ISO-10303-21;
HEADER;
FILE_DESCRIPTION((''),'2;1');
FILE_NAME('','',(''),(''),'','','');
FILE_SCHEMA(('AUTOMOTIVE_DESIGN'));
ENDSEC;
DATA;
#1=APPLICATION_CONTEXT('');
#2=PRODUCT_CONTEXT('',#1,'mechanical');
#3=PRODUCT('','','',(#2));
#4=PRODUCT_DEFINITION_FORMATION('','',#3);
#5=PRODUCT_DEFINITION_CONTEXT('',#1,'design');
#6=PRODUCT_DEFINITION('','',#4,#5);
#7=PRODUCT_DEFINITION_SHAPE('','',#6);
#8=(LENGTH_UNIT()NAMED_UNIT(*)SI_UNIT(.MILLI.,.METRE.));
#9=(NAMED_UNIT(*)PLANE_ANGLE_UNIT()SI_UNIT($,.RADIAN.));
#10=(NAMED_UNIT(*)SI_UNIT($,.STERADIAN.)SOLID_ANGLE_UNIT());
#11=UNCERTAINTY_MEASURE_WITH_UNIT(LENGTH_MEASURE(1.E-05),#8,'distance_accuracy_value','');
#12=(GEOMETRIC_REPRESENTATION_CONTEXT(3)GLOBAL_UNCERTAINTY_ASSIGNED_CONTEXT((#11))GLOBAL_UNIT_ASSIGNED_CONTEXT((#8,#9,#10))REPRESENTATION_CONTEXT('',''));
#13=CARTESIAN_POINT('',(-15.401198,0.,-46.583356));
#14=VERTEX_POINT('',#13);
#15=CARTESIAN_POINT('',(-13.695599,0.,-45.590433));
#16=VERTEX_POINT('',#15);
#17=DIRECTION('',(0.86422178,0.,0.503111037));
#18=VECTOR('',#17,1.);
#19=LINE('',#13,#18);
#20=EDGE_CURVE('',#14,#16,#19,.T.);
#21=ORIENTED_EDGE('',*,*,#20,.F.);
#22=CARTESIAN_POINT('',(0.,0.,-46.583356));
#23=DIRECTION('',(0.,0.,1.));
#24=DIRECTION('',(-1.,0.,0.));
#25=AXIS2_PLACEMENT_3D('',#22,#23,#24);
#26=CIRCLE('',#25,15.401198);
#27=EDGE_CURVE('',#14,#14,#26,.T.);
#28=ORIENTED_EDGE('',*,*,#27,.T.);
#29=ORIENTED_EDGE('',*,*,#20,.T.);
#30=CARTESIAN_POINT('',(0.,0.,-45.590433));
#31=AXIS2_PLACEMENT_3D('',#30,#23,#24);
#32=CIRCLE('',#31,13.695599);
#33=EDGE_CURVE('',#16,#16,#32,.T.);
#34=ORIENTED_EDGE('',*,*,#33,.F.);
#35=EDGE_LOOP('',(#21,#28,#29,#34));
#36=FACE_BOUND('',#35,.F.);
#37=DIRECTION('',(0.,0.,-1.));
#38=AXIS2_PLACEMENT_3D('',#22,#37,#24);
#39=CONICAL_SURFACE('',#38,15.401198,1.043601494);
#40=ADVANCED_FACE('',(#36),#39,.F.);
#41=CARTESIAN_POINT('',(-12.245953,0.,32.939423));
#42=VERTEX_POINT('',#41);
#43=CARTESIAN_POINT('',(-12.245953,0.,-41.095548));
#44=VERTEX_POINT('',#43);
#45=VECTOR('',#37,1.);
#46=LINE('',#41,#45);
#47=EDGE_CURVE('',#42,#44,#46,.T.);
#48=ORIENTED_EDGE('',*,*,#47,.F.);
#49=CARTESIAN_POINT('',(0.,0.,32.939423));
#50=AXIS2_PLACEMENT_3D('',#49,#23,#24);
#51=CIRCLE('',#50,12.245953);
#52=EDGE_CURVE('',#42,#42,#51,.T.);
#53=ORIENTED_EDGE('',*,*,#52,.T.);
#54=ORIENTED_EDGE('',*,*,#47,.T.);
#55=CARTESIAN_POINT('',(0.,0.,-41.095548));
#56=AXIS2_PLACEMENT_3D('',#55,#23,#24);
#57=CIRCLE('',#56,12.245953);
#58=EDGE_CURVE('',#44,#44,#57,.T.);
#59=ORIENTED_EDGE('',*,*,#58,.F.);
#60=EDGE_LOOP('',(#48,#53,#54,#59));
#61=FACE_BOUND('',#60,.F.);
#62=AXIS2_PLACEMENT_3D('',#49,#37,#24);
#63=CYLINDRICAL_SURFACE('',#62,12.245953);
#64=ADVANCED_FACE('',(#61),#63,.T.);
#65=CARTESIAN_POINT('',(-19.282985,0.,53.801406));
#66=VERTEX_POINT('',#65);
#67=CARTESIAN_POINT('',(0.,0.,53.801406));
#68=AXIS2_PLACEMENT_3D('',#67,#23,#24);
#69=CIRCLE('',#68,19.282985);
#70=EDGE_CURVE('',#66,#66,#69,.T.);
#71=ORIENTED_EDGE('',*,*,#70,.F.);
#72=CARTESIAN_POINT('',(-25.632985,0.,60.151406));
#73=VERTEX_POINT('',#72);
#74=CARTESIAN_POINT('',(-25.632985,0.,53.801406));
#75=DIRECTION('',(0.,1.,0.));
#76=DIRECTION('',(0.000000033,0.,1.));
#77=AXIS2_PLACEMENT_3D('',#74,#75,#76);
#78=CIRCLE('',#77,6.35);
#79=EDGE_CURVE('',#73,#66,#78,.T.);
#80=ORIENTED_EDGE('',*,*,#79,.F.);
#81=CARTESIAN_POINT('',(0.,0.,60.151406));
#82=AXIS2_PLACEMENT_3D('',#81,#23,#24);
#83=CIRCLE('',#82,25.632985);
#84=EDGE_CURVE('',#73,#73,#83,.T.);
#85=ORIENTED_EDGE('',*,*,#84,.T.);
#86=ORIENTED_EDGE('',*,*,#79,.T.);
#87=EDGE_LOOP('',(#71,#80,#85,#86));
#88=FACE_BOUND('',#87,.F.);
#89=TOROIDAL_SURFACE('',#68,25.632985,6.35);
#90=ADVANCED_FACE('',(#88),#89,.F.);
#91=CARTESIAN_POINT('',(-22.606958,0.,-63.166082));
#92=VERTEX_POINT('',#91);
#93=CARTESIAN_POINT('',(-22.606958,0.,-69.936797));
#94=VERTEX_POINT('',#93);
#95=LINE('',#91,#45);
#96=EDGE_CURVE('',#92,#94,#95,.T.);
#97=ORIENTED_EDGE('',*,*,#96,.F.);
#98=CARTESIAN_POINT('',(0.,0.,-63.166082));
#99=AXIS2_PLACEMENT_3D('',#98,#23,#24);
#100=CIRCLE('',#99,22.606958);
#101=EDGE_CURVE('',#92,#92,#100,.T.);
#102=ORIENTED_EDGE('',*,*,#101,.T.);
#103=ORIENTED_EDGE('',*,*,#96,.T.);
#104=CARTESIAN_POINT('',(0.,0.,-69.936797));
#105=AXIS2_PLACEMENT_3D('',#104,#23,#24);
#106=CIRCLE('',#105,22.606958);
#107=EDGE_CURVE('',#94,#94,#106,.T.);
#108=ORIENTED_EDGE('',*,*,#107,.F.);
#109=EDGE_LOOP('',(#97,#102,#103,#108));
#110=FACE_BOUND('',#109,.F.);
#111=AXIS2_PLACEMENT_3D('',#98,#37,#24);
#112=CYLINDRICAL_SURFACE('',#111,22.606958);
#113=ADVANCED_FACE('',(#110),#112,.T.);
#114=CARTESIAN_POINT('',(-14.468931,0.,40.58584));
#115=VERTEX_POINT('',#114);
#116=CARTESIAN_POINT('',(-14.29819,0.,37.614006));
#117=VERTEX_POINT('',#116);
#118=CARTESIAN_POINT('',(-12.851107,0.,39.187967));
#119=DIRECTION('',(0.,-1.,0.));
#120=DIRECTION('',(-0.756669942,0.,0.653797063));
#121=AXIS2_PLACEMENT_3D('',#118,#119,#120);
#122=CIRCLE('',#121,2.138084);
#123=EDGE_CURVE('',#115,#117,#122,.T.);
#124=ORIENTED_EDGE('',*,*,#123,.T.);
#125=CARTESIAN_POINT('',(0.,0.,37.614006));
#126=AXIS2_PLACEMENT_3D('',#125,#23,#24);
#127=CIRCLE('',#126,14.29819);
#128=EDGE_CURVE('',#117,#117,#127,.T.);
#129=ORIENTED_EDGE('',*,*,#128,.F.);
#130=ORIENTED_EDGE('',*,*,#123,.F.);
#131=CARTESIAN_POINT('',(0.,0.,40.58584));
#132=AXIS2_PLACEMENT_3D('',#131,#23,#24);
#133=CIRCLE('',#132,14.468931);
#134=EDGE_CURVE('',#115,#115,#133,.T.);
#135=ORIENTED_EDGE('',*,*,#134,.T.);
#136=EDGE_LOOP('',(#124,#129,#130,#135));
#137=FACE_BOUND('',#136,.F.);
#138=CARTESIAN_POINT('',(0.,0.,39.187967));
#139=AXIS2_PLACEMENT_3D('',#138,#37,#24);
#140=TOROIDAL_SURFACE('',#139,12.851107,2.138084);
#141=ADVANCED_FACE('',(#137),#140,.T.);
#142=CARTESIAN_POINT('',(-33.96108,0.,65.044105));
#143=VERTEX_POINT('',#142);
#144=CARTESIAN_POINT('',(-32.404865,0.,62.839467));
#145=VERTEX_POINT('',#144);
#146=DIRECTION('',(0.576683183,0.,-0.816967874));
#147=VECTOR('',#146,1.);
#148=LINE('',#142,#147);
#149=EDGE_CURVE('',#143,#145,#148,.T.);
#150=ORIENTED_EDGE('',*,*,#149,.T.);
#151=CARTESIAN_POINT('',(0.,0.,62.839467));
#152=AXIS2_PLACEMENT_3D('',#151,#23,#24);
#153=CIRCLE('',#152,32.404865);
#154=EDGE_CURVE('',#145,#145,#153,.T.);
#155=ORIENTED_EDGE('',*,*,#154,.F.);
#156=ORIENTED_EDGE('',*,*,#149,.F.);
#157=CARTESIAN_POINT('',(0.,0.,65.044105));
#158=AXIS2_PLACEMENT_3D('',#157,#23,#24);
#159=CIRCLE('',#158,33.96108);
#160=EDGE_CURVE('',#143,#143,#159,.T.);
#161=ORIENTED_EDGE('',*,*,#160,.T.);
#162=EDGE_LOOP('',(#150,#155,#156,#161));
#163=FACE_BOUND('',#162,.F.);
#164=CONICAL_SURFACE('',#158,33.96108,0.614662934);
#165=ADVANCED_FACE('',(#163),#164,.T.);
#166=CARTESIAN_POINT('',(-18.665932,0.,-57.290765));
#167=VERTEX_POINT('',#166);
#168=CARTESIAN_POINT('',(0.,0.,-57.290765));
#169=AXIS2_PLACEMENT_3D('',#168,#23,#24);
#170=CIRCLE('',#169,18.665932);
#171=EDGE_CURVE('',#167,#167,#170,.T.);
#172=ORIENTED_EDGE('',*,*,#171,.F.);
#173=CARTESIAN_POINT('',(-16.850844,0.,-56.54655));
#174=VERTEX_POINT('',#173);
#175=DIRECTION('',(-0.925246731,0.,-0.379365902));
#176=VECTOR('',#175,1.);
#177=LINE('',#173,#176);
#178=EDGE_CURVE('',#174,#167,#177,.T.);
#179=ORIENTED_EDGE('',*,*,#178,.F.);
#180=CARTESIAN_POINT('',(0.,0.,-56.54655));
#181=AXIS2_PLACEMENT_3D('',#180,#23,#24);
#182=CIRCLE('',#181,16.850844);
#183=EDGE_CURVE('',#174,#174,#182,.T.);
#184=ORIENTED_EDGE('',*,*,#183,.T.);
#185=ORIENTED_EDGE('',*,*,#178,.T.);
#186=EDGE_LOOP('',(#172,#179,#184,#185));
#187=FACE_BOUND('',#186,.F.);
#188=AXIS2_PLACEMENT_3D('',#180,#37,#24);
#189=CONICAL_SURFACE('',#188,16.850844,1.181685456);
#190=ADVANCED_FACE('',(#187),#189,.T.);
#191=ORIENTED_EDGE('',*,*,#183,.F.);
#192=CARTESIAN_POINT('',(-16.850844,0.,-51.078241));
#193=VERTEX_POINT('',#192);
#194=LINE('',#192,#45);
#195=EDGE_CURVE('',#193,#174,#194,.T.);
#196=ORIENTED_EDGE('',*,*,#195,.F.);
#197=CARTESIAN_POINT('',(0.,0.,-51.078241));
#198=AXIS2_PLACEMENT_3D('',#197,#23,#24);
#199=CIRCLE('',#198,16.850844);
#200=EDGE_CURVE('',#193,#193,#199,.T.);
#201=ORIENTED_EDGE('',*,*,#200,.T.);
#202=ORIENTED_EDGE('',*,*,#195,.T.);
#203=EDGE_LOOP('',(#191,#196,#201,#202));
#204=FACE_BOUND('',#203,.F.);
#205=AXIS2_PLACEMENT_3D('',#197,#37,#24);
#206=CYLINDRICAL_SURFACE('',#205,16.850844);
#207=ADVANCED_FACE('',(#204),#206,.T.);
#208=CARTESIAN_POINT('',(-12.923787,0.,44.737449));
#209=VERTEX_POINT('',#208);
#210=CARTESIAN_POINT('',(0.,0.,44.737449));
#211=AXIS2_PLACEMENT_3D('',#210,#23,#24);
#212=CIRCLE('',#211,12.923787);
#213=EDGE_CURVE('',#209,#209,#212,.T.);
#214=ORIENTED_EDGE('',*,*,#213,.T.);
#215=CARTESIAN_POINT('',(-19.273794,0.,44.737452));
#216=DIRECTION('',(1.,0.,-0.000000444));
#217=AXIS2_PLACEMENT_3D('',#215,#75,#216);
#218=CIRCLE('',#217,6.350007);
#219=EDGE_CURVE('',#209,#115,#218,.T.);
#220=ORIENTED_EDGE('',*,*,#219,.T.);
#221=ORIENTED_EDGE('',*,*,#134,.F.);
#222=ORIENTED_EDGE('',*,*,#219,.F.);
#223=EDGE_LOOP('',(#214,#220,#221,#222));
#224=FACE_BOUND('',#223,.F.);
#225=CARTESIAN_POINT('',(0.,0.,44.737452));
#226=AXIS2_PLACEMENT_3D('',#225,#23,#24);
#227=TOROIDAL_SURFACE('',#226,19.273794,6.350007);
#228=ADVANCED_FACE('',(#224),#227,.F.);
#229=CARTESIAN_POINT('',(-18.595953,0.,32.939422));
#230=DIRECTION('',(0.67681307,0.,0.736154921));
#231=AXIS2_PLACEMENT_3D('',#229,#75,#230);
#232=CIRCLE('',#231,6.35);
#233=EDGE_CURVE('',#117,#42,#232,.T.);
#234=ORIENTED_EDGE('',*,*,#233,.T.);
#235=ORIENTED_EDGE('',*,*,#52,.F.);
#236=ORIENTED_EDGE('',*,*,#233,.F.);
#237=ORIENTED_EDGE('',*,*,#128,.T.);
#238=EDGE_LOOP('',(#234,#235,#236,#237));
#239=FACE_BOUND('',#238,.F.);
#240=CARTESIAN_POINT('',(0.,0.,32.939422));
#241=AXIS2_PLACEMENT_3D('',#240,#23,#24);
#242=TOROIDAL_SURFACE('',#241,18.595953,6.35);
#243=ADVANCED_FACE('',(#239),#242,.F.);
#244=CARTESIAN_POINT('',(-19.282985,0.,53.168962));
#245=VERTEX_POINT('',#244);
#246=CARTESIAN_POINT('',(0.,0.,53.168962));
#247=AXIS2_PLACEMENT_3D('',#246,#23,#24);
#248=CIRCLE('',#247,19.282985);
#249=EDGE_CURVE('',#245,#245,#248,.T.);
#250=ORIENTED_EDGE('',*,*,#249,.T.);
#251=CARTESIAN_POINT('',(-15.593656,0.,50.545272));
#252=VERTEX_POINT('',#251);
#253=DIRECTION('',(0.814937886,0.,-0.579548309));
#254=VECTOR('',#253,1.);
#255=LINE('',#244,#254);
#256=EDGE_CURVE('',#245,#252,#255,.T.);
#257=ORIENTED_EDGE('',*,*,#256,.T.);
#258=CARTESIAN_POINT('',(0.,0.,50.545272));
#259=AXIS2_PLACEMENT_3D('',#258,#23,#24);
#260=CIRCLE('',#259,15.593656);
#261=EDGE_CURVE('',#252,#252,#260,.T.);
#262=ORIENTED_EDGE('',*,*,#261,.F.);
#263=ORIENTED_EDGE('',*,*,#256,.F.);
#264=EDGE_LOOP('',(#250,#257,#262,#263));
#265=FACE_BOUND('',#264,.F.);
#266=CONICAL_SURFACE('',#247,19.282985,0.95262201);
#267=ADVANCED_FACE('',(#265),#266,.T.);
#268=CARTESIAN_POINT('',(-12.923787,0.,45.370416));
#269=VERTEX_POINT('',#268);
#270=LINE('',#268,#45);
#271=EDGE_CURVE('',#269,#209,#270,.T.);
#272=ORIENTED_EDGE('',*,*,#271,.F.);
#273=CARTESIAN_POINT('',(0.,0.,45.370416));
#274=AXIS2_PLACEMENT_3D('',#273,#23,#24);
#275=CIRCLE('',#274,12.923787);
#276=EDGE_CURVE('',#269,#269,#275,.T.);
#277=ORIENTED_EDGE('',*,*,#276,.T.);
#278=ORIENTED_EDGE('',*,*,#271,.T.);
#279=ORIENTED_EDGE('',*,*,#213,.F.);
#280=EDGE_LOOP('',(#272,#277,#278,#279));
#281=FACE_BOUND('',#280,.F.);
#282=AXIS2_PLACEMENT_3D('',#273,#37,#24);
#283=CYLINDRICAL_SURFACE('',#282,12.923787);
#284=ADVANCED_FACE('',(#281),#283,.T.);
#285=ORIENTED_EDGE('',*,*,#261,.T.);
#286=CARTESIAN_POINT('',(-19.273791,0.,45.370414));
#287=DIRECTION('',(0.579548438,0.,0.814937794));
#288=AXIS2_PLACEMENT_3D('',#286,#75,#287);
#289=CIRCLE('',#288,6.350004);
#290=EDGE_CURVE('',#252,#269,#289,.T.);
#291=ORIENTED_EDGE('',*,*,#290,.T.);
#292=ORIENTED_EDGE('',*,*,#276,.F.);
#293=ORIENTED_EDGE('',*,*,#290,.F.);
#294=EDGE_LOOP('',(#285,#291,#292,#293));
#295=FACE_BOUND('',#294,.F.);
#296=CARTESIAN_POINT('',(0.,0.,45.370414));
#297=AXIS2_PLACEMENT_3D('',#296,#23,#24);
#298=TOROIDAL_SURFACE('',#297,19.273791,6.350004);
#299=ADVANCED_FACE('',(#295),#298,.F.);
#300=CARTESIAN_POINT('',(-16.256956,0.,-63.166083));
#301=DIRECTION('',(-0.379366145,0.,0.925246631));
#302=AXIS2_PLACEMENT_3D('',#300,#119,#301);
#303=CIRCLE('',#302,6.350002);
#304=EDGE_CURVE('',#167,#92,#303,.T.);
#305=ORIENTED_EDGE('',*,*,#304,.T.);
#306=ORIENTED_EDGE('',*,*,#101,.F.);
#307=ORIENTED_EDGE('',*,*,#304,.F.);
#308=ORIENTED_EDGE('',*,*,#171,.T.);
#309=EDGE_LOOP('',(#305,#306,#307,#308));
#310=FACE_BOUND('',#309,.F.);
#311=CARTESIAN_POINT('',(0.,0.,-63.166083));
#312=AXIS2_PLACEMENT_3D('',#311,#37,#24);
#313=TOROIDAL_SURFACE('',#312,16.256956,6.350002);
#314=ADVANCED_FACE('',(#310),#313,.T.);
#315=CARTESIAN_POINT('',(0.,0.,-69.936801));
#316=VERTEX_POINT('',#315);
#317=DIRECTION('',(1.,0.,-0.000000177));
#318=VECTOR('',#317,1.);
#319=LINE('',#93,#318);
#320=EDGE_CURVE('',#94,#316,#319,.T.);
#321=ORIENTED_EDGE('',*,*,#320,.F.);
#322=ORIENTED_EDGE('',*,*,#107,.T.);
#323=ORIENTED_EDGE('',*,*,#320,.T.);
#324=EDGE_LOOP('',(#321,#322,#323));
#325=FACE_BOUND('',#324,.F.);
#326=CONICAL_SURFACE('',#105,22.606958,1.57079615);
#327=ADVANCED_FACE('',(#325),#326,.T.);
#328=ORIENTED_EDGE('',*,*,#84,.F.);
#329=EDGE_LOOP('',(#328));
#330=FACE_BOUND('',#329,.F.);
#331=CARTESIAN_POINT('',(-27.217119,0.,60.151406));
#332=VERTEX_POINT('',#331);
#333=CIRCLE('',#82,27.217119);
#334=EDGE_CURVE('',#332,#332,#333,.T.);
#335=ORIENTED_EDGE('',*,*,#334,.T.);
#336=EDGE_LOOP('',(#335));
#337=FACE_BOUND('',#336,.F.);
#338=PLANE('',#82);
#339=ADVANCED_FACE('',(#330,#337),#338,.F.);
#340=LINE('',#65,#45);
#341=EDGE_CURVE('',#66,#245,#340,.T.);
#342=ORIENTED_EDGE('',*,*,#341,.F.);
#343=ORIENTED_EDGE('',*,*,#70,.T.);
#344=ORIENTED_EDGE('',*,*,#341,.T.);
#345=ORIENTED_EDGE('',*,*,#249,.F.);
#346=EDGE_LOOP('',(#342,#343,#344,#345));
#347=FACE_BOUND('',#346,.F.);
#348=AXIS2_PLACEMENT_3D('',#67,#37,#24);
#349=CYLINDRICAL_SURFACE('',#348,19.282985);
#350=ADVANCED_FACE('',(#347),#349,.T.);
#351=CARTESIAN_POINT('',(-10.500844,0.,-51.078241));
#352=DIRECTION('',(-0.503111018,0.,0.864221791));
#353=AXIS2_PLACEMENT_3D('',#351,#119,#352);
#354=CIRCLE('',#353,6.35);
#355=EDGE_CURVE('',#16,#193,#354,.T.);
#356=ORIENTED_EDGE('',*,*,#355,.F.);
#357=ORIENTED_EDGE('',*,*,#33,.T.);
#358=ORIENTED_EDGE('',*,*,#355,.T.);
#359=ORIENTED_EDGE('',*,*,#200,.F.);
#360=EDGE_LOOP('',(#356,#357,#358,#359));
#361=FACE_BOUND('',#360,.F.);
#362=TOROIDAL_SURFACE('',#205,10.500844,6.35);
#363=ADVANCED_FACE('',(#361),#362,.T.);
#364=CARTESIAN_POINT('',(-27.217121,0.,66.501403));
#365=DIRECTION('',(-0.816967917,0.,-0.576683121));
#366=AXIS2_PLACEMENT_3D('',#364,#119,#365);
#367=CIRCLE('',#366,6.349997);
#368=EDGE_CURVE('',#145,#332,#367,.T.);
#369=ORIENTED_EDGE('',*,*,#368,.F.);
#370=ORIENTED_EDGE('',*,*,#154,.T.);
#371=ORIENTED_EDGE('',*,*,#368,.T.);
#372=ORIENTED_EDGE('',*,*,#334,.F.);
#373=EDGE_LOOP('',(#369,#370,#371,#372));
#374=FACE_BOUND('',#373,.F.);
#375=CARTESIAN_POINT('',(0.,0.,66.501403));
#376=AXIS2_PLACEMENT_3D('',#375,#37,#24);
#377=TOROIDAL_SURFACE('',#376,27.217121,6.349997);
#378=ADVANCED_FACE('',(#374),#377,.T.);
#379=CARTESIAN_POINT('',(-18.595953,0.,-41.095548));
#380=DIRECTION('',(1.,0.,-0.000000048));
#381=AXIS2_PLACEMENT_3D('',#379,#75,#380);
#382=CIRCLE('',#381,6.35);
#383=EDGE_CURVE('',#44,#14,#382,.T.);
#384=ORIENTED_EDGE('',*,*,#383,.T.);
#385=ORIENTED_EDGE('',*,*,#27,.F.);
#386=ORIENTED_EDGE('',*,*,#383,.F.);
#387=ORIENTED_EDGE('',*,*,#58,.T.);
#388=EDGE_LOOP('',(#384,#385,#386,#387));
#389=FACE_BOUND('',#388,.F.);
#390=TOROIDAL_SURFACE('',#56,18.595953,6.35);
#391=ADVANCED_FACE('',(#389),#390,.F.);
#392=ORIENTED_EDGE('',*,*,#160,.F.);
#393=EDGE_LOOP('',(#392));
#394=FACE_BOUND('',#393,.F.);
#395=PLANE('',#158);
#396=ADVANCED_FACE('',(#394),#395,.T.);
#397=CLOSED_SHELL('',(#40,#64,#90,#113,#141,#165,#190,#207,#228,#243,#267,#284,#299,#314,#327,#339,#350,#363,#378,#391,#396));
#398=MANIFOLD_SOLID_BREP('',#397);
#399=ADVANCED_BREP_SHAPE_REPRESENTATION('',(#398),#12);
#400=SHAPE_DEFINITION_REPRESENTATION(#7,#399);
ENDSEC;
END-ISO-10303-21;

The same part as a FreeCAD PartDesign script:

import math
import FreeCAD as App
import Part
import Sketcher
from FreeCAD import Vector
Q = App.Units.Quantity

doc = App.newDocument("Part")
body = doc.addObject("PartDesign::Body", "Body")

sketch1 = doc.addObject("Sketcher::SketchObject", "Sketch")
body.addObject(sketch1)
sketch1.AttachmentSupport = (doc.XZ_Plane, [""])
sketch1.MapMode = "FlatFace"
sketch1.addGeometry(Part.ArcOfCircle(Part.Circle(Vector(-18.6, 32.9, 0), Vector(0, 0, 1), 6.3), math.radians(0), math.radians(47)), False)
sketch1.addGeometry(Part.LineSegment(Vector(-12.2, 32.9, 0), Vector(-12.2, -41.1, 0)), False)
sketch1.addGeometry(Part.ArcOfCircle(Part.Circle(Vector(-18.6, -41.1, 0), Vector(0, 0, 1), 6.3), math.radians(-60), math.radians(0)), False)
sketch1.addGeometry(Part.LineSegment(Vector(-15.4, -46.6, 0), Vector(-13.7, -45.6, 0)), False)
sketch1.addGeometry(Part.ArcOfCircle(Part.Circle(Vector(-10.5, -51.1, 0), Vector(0, 0, 1), 6.3), math.radians(120), math.radians(180)), False)
sketch1.addGeometry(Part.LineSegment(Vector(-16.9, -51.1, 0), Vector(-16.9, -56.5, 0)), False)
sketch1.addGeometry(Part.LineSegment(Vector(-16.9, -56.5, 0), Vector(-18.7, -57.3, 0)), False)
sketch1.addGeometry(Part.ArcOfCircle(Part.Circle(Vector(-16.3, -63.2, 0), Vector(0, 0, 1), 6.4), math.radians(112), math.radians(180)), False)
sketch1.addGeometry(Part.LineSegment(Vector(-22.6, -63.2, 0), Vector(-22.6, -69.9, 0)), False)
sketch1.addGeometry(Part.LineSegment(Vector(-22.6, -69.9, 0), Vector(0, -69.9, 0)), False)
sketch1.addGeometry(Part.LineSegment(Vector(0, -69.9, 0), Vector(0, 65, 0)), False)
sketch1.addGeometry(Part.LineSegment(Vector(0, 65, 0), Vector(-34, 65, 0)), False)
sketch1.addGeometry(Part.LineSegment(Vector(-34, 65, 0), Vector(-32.4, 62.8, 0)), False)
sketch1.addGeometry(Part.ArcOfCircle(Part.Circle(Vector(-27.2, 66.5, 0), Vector(0, 0, 1), 6.3), math.radians(-145), math.radians(-90)), False)
sketch1.addGeometry(Part.LineSegment(Vector(-27.2, 60.2, 0), Vector(-25.6, 60.2, 0)), False)
sketch1.addGeometry(Part.ArcOfCircle(Part.Circle(Vector(-25.6, 53.8, 0), Vector(0, 0, 1), 6.4), math.radians(0), math.radians(90)), False)
sketch1.addGeometry(Part.LineSegment(Vector(-19.3, 53.8, 0), Vector(-19.3, 53.2, 0)), False)
sketch1.addGeometry(Part.LineSegment(Vector(-19.3, 53.2, 0), Vector(-15.6, 50.5, 0)), False)
sketch1.addGeometry(Part.ArcOfCircle(Part.Circle(Vector(-19.3, 45.4, 0), Vector(0, 0, 1), 6.4), math.radians(0), math.radians(55)), False)
sketch1.addGeometry(Part.LineSegment(Vector(-12.9, 45.4, 0), Vector(-12.9, 44.7, 0)), False)
sketch1.addGeometry(Part.ArcOfCircle(Part.Circle(Vector(-19.3, 44.7, 0), Vector(0, 0, 1), 6.4), math.radians(-41), math.radians(0)), False)
sketch1.addGeometry(Part.ArcOfCircle(Part.Circle(Vector(-12.9, 39.2, 0), Vector(0, 0, 1), 2.1), math.radians(139), math.radians(227)), False)
sketch1.addConstraint(Sketcher.Constraint("Tangent", 0, 1, 1, 1))
sketch1.addConstraint(Sketcher.Constraint("Tangent", 1, 2, 2, 2))
sketch1.addConstraint(Sketcher.Constraint("Tangent", 2, 1, 3, 1))
sketch1.addConstraint(Sketcher.Constraint("Tangent", 3, 2, 4, 1))
sketch1.addConstraint(Sketcher.Constraint("Tangent", 4, 2, 5, 1))
sketch1.addConstraint(Sketcher.Constraint("Coincident", 5, 2, 6, 1))
sketch1.addConstraint(Sketcher.Constraint("Tangent", 6, 2, 7, 1))
sketch1.addConstraint(Sketcher.Constraint("Tangent", 7, 2, 8, 1))
sketch1.addConstraint(Sketcher.Constraint("Coincident", 8, 2, 9, 1))
sketch1.addConstraint(Sketcher.Constraint("Coincident", 9, 2, 10, 1))
sketch1.addConstraint(Sketcher.Constraint("Coincident", 10, 2, 11, 1))
sketch1.addConstraint(Sketcher.Constraint("Coincident", 11, 2, 12, 1))
sketch1.addConstraint(Sketcher.Constraint("Tangent", 12, 2, 13, 1))
sketch1.addConstraint(Sketcher.Constraint("Tangent", 13, 2, 14, 1))
sketch1.addConstraint(Sketcher.Constraint("Tangent", 14, 2, 15, 2))
sketch1.addConstraint(Sketcher.Constraint("Tangent", 15, 1, 16, 1))
sketch1.addConstraint(Sketcher.Constraint("Coincident", 16, 2, 17, 1))
sketch1.addConstraint(Sketcher.Constraint("Tangent", 17, 2, 18, 2))
sketch1.addConstraint(Sketcher.Constraint("Tangent", 18, 1, 19, 1))
sketch1.addConstraint(Sketcher.Constraint("Tangent", 19, 2, 20, 2))
sketch1.addConstraint(Sketcher.Constraint("Tangent", 20, 1, 21, 1))
sketch1.addConstraint(Sketcher.Constraint("Tangent", 21, 2, 0, 2))
sketch1.addConstraint(Sketcher.Constraint("Vertical", 1))
sketch1.addConstraint(Sketcher.Constraint("Vertical", 5))
sketch1.addConstraint(Sketcher.Constraint("Vertical", 8))
sketch1.addConstraint(Sketcher.Constraint("Vertical", 10))
sketch1.addConstraint(Sketcher.Constraint("Horizontal", 11))
sketch1.addConstraint(Sketcher.Constraint("Horizontal", 14))
sketch1.addConstraint(Sketcher.Constraint("Vertical", 16))
sketch1.addConstraint(Sketcher.Constraint("Vertical", 19))
sketch1.addConstraint(Sketcher.Constraint("Equal", 0, 2))
sketch1.addConstraint(Sketcher.Constraint("Equal", 2, 4))
sketch1.addConstraint(Sketcher.Constraint("Equal", 4, 7))
sketch1.addConstraint(Sketcher.Constraint("Equal", 7, 15))
sketch1.addConstraint(Sketcher.Constraint("PointOnObject", 9, 2, -2))
sketch1.addConstraint(Sketcher.Constraint("Radius", 0, Q("0.25 in")))
sketch1.addConstraint(Sketcher.Constraint("Radius", 13, Q("0.2499999 in")))
sketch1.addConstraint(Sketcher.Constraint("Radius", 18, Q("0.2500001 in")))
sketch1.addConstraint(Sketcher.Constraint("Angle", 9, Q("-0.00001 deg")))
sketch1.addConstraint(Sketcher.Constraint("Radius", 20, 6.350007))
sketch1.addConstraint(Sketcher.Constraint("Radius", 21, 2.138084))
sketch1.addConstraint(Sketcher.Constraint("DistanceY", 6, 2, 5, 2, Q("0.0292998 in")))
sketch1.addConstraint(Sketcher.Constraint("DistanceX", 11, 2, 11, 1, 33.96108))
sketch1.addConstraint(Sketcher.Constraint("DistanceY", 1, 2, 1, 1, 74.034971))
sketch1.addConstraint(Sketcher.Constraint("DistanceY", 5, 2, 5, 1, 5.468309))
sketch1.addConstraint(Sketcher.Constraint("DistanceX", 3, 2, -1, 1, 13.695599))
sketch1.addConstraint(Sketcher.Constraint("DistanceY", 9, 2, -1, 1, 69.936801))
sketch1.addConstraint(Sketcher.Constraint("DistanceY", 2, 3, 20, 3, 85.833))
sketch1.addConstraint(Sketcher.Constraint("DistanceX", 2, 1, 3, 2, 1.705599))
sketch1.addConstraint(Sketcher.Constraint("DistanceY", 10, 2, 13, 3, 1.457298))
sketch1.addConstraint(Sketcher.Constraint("Distance", 9, 22.606958))
sketch1.addConstraint(Sketcher.Constraint("Distance", 12, 2.698561))
sketch1.addConstraint(Sketcher.Constraint("Distance", 17, 4.527129))
sketch1.addConstraint(Sketcher.Constraint("DistanceX", 14, 1, 14, 2, 1.584134))
sketch1.addConstraint(Sketcher.Constraint("DistanceY", 8, 2, 8, 1, 6.770715))
sketch1.addConstraint(Sketcher.Constraint("DistanceY", 10, 1, 10, 2, 134.980906))
sketch1.addConstraint(Sketcher.Constraint("DistanceY", 16, 2, 16, 1, 0.632444))
sketch1.addConstraint(Sketcher.Constraint("DistanceY", 19, 2, 19, 1, 0.632967))
sketch1.addConstraint(Sketcher.Constraint("DistanceX", 18, 3, -1, 1, 19.273791))
revolution = doc.addObject("PartDesign::Revolution", "Revolution")
body.addObject(revolution)
revolution.Profile = sketch1
revolution.ReferenceAxis = (sketch1, ["V_Axis"])
revolution.Angle = 360

doc.recompute()
